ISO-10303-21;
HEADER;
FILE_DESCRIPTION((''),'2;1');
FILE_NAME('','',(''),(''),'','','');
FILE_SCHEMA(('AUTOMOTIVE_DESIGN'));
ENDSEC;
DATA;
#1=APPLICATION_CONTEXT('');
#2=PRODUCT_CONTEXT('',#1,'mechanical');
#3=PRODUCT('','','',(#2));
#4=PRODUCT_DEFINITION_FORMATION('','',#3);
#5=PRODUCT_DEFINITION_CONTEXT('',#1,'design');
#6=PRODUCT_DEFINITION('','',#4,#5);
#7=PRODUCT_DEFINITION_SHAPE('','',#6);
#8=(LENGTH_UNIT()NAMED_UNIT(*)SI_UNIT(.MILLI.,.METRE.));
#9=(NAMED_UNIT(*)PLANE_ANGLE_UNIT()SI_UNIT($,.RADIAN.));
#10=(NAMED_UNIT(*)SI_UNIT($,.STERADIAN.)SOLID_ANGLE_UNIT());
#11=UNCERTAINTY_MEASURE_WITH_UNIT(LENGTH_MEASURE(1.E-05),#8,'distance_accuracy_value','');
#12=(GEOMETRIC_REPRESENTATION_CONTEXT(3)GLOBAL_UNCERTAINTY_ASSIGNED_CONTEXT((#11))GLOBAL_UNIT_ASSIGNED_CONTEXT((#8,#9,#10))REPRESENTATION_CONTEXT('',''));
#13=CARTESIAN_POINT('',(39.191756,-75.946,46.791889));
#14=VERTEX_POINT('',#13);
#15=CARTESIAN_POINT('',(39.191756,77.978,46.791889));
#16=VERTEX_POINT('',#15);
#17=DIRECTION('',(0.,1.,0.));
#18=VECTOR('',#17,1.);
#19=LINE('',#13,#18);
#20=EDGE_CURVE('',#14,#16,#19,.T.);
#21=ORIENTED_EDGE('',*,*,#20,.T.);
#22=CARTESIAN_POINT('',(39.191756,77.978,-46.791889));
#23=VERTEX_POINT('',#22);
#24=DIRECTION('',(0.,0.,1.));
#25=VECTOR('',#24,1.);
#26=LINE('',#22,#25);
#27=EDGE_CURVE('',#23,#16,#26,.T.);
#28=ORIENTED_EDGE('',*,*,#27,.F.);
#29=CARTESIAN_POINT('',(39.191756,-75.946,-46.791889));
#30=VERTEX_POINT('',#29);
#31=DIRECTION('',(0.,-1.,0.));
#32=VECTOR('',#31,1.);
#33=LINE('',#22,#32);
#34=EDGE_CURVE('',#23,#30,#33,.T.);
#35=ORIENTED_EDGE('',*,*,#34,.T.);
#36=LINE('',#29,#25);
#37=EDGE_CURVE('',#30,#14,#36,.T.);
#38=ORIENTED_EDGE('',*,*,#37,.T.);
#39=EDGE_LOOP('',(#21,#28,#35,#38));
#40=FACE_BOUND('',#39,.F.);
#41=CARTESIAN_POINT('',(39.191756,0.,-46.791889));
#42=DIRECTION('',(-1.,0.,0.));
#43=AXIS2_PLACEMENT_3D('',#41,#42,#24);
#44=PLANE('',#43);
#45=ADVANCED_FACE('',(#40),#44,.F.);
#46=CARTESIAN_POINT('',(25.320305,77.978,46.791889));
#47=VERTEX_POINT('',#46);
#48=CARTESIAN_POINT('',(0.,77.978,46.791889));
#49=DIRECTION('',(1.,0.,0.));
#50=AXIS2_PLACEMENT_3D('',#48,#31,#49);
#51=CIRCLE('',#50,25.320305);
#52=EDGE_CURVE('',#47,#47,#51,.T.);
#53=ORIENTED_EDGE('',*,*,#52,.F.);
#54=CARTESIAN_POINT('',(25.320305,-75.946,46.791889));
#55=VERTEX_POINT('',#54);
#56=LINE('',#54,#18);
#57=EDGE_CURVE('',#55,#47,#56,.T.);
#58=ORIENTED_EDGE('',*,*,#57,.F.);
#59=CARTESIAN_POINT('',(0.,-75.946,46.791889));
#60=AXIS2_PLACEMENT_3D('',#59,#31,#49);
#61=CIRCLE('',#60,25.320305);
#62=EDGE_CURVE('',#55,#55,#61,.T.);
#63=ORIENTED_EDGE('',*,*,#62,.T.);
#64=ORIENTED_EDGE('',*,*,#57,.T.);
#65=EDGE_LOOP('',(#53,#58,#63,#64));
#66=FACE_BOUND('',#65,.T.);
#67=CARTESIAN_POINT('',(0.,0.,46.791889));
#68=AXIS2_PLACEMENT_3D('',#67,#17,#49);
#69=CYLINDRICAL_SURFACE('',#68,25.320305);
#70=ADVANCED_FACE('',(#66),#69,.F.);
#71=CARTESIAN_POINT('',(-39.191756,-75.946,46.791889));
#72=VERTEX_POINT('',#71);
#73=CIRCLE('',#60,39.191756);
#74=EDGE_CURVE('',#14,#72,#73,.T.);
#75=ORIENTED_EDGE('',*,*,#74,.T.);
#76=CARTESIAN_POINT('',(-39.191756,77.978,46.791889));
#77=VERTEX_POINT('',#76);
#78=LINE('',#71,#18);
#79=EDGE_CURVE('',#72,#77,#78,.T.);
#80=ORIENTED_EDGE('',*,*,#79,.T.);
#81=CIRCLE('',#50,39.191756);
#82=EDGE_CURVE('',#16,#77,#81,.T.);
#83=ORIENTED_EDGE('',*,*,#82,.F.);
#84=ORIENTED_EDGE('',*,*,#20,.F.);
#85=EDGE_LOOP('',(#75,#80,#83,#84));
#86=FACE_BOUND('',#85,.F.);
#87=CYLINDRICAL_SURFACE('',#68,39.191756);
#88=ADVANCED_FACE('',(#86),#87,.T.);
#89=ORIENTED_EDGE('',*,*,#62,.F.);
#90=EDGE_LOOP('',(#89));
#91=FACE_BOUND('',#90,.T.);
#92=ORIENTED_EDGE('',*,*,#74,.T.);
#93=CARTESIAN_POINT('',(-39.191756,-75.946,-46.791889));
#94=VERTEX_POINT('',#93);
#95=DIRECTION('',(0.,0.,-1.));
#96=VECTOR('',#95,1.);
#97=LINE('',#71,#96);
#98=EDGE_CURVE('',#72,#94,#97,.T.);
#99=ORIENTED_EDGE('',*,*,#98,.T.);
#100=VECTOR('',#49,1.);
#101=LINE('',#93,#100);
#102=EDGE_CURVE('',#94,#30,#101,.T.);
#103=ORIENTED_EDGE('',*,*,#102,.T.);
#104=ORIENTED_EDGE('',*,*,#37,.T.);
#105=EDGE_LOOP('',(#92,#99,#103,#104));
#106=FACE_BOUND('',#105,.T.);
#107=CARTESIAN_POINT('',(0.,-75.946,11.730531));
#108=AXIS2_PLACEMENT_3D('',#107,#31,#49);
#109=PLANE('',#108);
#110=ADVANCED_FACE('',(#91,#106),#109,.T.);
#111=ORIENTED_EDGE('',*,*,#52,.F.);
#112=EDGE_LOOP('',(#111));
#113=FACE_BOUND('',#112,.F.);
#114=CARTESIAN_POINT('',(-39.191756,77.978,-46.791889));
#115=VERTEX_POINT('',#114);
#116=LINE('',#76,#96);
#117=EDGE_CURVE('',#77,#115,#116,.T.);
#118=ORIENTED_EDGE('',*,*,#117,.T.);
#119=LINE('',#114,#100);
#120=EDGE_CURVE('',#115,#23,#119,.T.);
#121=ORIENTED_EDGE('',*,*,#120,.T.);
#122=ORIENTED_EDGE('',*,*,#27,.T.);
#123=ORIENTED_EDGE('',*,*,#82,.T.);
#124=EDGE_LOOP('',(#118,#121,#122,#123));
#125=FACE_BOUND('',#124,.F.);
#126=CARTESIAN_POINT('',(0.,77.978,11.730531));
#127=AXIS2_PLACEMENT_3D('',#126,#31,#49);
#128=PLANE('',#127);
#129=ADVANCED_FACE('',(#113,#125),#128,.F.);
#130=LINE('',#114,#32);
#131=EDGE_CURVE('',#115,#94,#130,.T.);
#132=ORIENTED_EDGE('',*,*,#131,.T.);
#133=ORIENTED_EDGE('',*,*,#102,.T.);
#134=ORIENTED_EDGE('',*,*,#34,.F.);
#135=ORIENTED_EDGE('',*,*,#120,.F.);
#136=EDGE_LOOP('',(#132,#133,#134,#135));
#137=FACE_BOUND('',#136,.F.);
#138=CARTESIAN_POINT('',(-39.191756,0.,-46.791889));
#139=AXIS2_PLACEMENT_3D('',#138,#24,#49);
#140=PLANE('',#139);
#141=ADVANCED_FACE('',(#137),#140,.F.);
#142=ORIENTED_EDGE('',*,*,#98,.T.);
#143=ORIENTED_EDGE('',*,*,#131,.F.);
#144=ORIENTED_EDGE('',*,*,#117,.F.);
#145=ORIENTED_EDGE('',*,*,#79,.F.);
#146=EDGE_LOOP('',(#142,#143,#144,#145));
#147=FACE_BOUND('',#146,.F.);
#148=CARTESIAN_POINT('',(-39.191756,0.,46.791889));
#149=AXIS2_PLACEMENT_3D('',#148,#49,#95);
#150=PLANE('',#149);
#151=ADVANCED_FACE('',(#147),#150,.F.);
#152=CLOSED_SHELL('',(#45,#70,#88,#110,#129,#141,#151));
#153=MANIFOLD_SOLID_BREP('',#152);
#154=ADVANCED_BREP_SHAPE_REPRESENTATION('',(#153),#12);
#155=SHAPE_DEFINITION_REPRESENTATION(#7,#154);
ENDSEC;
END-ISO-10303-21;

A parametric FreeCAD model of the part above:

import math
import FreeCAD as App
import Part
import Sketcher

doc = App.newDocument("Part")
params = doc.addObject("Spreadsheet::Sheet", "Params")
for row, (alias, value) in enumerate([
    ("pad1_length", "3.07 in"),
    ("pad2_length", "2.99 in"),
], start=1):
    params.set(f"A{row}", alias)
    params.set(f"B{row}", "=" + value)
    params.setAlias(f"B{row}", alias)

body = doc.addObject("PartDesign::Body", "Body")

sketch1 = body.newObject("Sketcher::SketchObject", "Sketch")
sketch1.AttachmentSupport = (doc.getObject("XZ_Plane"), [""])
sketch1.MapMode = "FlatFace"
sketch1.addGeometry(Part.LineSegment(App.Vector(-39, 47, 0), App.Vector(-39, -47, 0)), False)
sketch1.addGeometry(Part.LineSegment(App.Vector(-39, -47, 0), App.Vector(39, -47, 0)), False)
sketch1.addGeometry(Part.LineSegment(App.Vector(39, -47, 0), App.Vector(39, 47, 0)), False)
sketch1.addGeometry(Part.ArcOfCircle(Part.Circle(App.Vector(0, 47, 0), App.Vector(0, 0, 1), 39), math.radians(0), math.radians(180)), False)
sketch1.addGeometry(Part.Circle(App.Vector(0, 47, 0), App.Vector(0, 0, 1), 25), False)
sketch1.addConstraint(Sketcher.Constraint("Coincident", 0, 2, 1, 1))
sketch1.addConstraint(Sketcher.Constraint("Coincident", 1, 2, 2, 1))
sketch1.addConstraint(Sketcher.Constraint("Tangent", 2, 2, 3, 1))
sketch1.addConstraint(Sketcher.Constraint("Tangent", 3, 2, 0, 1))
sketch1.addConstraint(Sketcher.Constraint("Vertical", 0))
sketch1.addConstraint(Sketcher.Constraint("Horizontal", 1))
sketch1.addConstraint(Sketcher.Constraint("Vertical", 2))
sketch1.addConstraint(Sketcher.Constraint("Coincident", 4, 3, 3, 3))
sketch1.addConstraint(Sketcher.Constraint("Symmetric", 0, 2, 2, 2, -1, 1))
sketch1.addConstraint(Sketcher.Constraint("Diameter", 4, 50.64061))
sketch1.addConstraint(Sketcher.Constraint("Radius", 3, 39.191756))
sketch1.addConstraint(Sketcher.Constraint("DistanceY", 0, 2, 0, 1, 93.583778))
pad1 = body.newObject("PartDesign::Pad", "Pad")
pad1.Profile = sketch1
pad1.setExpression("Length", "Params.pad1_length")
pad1.Reversed = True

sketch2 = body.newObject("Sketcher::SketchObject", "Sketch001")
sketch2.AttachmentSupport = (doc.getObject("XZ_Plane"), [""])
sketch2.MapMode = "FlatFace"
sketch2.addGeometry(Part.LineSegment(App.Vector(-39, 47, 0), App.Vector(-39, -47, 0)), False)
sketch2.addGeometry(Part.LineSegment(App.Vector(-39, -47, 0), App.Vector(39, -47, 0)), False)
sketch2.addGeometry(Part.LineSegment(App.Vector(39, -47, 0), App.Vector(39, 47, 0)), False)
sketch2.addGeometry(Part.ArcOfCircle(Part.Circle(App.Vector(0, 47, 0), App.Vector(0, 0, 1), 39), math.radians(0), math.radians(180)), False)
sketch2.addGeometry(Part.Circle(App.Vector(0, 47, 0), App.Vector(0, 0, 1), 25), False)
sketch2.addConstraint(Sketcher.Constraint("Coincident", 0, 2, 1, 1))
sketch2.addConstraint(Sketcher.Constraint("Coincident", 1, 2, 2, 1))
sketch2.addConstraint(Sketcher.Constraint("Tangent", 2, 2, 3, 1))
sketch2.addConstraint(Sketcher.Constraint("Tangent", 3, 2, 0, 1))
sketch2.addConstraint(Sketcher.Constraint("Vertical", 0))
sketch2.addConstraint(Sketcher.Constraint("Horizontal", 1))
sketch2.addConstraint(Sketcher.Constraint("Vertical", 2))
sketch2.addConstraint(Sketcher.Constraint("Coincident", 4, 3, 3, 3))
sketch2.addConstraint(Sketcher.Constraint("Symmetric", 0, 2, 2, 2, -1, 1))
sketch2.addConstraint(Sketcher.Constraint("Diameter", 4, 50.64061))
sketch2.addConstraint(Sketcher.Constraint("Radius", 3, 39.191756))
sketch2.addConstraint(Sketcher.Constraint("DistanceY", 0, 2, 0, 1, 93.583778))
pad2 = body.newObject("PartDesign::Pad", "Pad001")
pad2.Profile = sketch2
pad2.setExpression("Length", "Params.pad2_length")

doc.recompute()
